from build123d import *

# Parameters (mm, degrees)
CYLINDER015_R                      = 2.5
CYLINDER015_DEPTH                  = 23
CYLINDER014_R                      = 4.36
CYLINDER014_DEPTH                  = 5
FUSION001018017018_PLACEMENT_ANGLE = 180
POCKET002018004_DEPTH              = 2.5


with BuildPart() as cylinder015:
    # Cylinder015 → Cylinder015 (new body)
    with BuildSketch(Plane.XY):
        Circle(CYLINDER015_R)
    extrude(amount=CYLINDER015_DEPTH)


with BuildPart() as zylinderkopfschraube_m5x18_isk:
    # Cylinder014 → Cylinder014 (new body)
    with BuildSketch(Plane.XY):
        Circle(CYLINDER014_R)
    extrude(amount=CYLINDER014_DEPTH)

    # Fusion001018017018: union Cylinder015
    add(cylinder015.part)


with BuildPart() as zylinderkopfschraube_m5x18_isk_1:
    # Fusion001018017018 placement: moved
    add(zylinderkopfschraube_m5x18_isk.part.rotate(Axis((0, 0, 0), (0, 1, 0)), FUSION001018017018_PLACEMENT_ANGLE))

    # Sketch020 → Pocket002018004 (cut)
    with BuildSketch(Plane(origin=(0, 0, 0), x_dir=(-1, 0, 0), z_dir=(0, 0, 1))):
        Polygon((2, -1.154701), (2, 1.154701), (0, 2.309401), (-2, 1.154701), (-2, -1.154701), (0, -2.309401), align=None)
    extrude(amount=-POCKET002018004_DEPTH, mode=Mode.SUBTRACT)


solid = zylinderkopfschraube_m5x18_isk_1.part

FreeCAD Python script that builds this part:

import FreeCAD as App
import Part
import Sketcher
from FreeCAD import Vector
Q = App.Units.Quantity


def add_polygon(sketch, points):
    """Adds a closed chain of lines whose ends are joined by coincident constraints."""
    first, n = sketch.GeometryCount, len(points)
    for a, b in zip(points, points[1:] + points[:1]):
        sketch.addGeometry(Part.LineSegment(App.Vector(*a, 0), App.Vector(*b, 0)), False)
    for i in range(n):
        sketch.addConstraint(Sketcher.Constraint("Coincident", first + i, 2, first + (i + 1) % n, 1))

doc = App.newDocument("Part")
params = doc.addObject("Spreadsheet::Sheet", "Params")
for row, (alias, value) in enumerate([
    ("sketch1_diameter", "5 mm"),
    ("pad1_length", "23 mm"),
    ("sketch2_diameter", "8.72 mm"),
    ("pad2_length", "5 mm"),
    ("pocket1_length", "2.5 mm"),
], start=1):
    params.set(f"A{row}", alias)
    params.set(f"B{row}", "=" + value)
    params.setAlias(f"B{row}", alias)

body = doc.addObject("PartDesign::Body", "Body")

sketch1 = body.newObject("Sketcher::SketchObject", "Sketch")
sketch1.AttachmentSupport = (doc.getObject("XY_Plane"), [""])
sketch1.MapMode = "FlatFace"
sketch1.addGeometry(Part.Circle(Vector(0, 0, 0), Vector(0, 0, 1), 2.5), False)
sketch1.addConstraint(Sketcher.Constraint("Coincident", 0, 3, -1, 1))
sketch1.addConstraint(Sketcher.Constraint("Diameter", 0, Q("5 mm")))
sketch1.setExpression("Constraints[1]", "Params.sketch1_diameter")
pad1 = body.newObject("PartDesign::Pad", "Pad")
pad1.Profile = sketch1
pad1.setExpression("Length", "Params.pad1_length")
body2 = doc.addObject("PartDesign::Body", "Body001")

sketch2 = body2.newObject("Sketcher::SketchObject", "Sketch001")
sketch2.AttachmentSupport = (doc.getObject("XY_Plane001"), [""])
sketch2.MapMode = "FlatFace"
sketch2.addGeometry(Part.Circle(Vector(0, 0, 0), Vector(0, 0, 1), 4.36), False)
sketch2.addConstraint(Sketcher.Constraint("Coincident", 0, 3, -1, 1))
sketch2.addConstraint(Sketcher.Constraint("Diameter", 0, Q("8.72 mm")))
sketch2.setExpression("Constraints[1]", "Params.sketch2_diameter")
pad2 = body2.newObject("PartDesign::Pad", "Pad001")
pad2.Profile = sketch2
pad2.setExpression("Length", "Params.pad2_length")
doc.recompute()

boolean = body2.newObject("PartDesign::Boolean", "Boolean")
boolean.Type = "Fuse"
boolean.addObjects([body])
body3 = doc.addObject("PartDesign::Body", "Body002")
doc.recompute()

body2.Placement = App.Placement(Vector(0, 0, 0), App.Rotation(Vector(0, 1, 0), 180))
boolean2 = body3.newObject("PartDesign::Boolean", "Boolean001")
boolean2.Type = "Fuse"
boolean2.addObjects([body2])

sketch3 = body3.newObject("Sketcher::SketchObject", "Sketch002")
sketch3.AttachmentSupport = (doc.getObject("XY_Plane002"), [""])
sketch3.MapMode = "FlatFace"
add_polygon(sketch3, [(-2, 1.154701), (-2, -1.154701), (0, -2.309401), (2, -1.154701), (2, 1.154701), (0, 2.309401)])
sketch3.addConstraint(Sketcher.Constraint("Vertical", 0))
sketch3.addConstraint(Sketcher.Constraint("Vertical", 3))
sketch3.addConstraint(Sketcher.Constraint("Symmetric", 0, 2, 3, 2, -1, 1))
sketch3.addConstraint(Sketcher.Constraint("Symmetric", 1, 2, 4, 2, -1, 1))
sketch3.addConstraint(Sketcher.Constraint("PointOnObject", 1, 2, -2))
sketch3.addConstraint(Sketcher.Constraint("Parallel", 2, 5))
sketch3.addConstraint(Sketcher.Constraint("Horizontal", 0, 2, 2, 2))
sketch3.addConstraint(Sketcher.Constraint("Angle", 1, Q("-29.999988 deg")))
sketch3.addConstraint(Sketcher.Constraint("DistanceX", 0, 2, -1, 1, Q("2 mm")))
sketch3.addConstraint(Sketcher.Constraint("DistanceY", 0, 2, 0, 1, Q("2.309402 mm")))
pocket1 = body3.newObject("PartDesign::Pocket", "Pocket")
pocket1.Profile = sketch3
pocket1.setExpression("Length", "Params.pocket1_length")

doc.recompute()
